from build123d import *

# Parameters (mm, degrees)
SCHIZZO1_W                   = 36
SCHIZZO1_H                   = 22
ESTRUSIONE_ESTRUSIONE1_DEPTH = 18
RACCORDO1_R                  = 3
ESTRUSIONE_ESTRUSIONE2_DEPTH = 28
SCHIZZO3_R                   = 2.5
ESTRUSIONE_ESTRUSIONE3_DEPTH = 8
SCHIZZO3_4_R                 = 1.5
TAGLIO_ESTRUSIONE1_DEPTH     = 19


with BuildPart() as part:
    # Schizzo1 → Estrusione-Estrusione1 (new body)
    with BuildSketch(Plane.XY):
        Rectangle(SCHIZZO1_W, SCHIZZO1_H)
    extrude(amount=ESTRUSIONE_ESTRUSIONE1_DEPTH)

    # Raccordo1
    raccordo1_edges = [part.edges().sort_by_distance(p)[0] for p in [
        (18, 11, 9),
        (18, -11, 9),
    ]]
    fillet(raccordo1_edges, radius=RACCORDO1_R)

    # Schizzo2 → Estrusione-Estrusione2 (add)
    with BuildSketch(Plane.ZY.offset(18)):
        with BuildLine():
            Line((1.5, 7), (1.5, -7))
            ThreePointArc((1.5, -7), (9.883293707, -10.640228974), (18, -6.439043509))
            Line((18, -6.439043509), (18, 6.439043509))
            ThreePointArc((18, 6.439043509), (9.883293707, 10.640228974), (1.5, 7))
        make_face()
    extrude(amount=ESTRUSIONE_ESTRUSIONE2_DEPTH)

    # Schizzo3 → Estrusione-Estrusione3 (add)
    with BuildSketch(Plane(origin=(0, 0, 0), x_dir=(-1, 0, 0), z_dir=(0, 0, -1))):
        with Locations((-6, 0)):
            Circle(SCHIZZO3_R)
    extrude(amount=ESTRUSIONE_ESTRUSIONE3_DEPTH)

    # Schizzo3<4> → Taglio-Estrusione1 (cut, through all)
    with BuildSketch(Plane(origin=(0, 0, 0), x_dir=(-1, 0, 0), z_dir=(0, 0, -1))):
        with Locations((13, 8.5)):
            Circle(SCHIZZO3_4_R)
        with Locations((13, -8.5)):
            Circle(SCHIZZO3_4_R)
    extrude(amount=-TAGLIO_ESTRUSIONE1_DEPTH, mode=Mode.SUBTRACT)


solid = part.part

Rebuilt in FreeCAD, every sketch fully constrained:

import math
import FreeCAD as App
import Part
import Sketcher
Q = App.Units.Quantity


def edges_at(feature, points):
    """Names of the edges that pass closest to the given points."""
    edges = feature.Shape.Edges
    near = lambda p: min(range(len(edges)), key=lambda i: edges[i].distToShape(Part.Vertex(*p))[0])
    return sorted({f"Edge{near(p) + 1}" for p in points})

doc = App.newDocument("Part")
body = doc.addObject("PartDesign::Body", "Body")

sketch1 = doc.addObject("Sketcher::SketchObject", "Sketch")
body.addObject(sketch1)
sketch1.AttachmentSupport = (doc.XY_Plane, [""])
sketch1.MapMode = "FlatFace"
sketch1.addGeometry(Part.LineSegment(App.Vector(-18, 11, 0), App.Vector(-18, -11, 0)), False)
sketch1.addGeometry(Part.LineSegment(App.Vector(-18, -11, 0), App.Vector(18, -11, 0)), False)
sketch1.addGeometry(Part.LineSegment(App.Vector(18, -11, 0), App.Vector(18, 11, 0)), False)
sketch1.addGeometry(Part.LineSegment(App.Vector(18, 11, 0), App.Vector(-18, 11, 0)), False)
sketch1.addConstraint(Sketcher.Constraint("Coincident", 0, 2, 1, 1))
sketch1.addConstraint(Sketcher.Constraint("Coincident", 1, 2, 2, 1))
sketch1.addConstraint(Sketcher.Constraint("Coincident", 2, 2, 3, 1))
sketch1.addConstraint(Sketcher.Constraint("Coincident", 3, 2, 0, 1))
sketch1.addConstraint(Sketcher.Constraint("Vertical", 0))
sketch1.addConstraint(Sketcher.Constraint("Horizontal", 1))
sketch1.addConstraint(Sketcher.Constraint("Vertical", 2))
sketch1.addConstraint(Sketcher.Constraint("Horizontal", 3))
sketch1.addConstraint(Sketcher.Constraint("Symmetric", 0, 2, 2, 2, -1, 1))
sketch1.addConstraint(Sketcher.Constraint("DistanceX", 1, 1, 1, 2, Q("36 mm")))
sketch1.addConstraint(Sketcher.Constraint("DistanceY", 0, 2, 0, 1, Q("22 mm")))
pad1 = doc.addObject("PartDesign::Pad", "Pad")
body.addObject(pad1)
pad1.Profile = sketch1
pad1.Length = 18
doc.recompute()

fillet = doc.addObject("PartDesign::Fillet", "Fillet")
body.addObject(fillet)
fillet.Base = (pad1, edges_at(pad1, [(18, 11, 9), (18, -11, 9)]))
fillet.Radius = 3

sketch2 = doc.addObject("Sketcher::SketchObject", "Sketch001")
body.addObject(sketch2)
sketch2.AttachmentSupport = (doc.YZ_Plane, [""])
sketch2.MapMode = "FlatFace"
sketch2.AttachmentOffset = App.Placement(App.Vector(0, 0, -18), App.Rotation())
sketch2.addGeometry(Part.LineSegment(App.Vector(7, 2, 0), App.Vector(-7, 2, 0)), False)
sketch2.addGeometry(Part.ArcOfCircle(Part.Circle(App.Vector(0, 10, 0), App.Vector(0, 0, 1), 11), math.radians(127), math.radians(229)), False)
sketch2.addGeometry(Part.LineSegment(App.Vector(-6, 18, 0), App.Vector(6, 18, 0)), False)
sketch2.addGeometry(Part.ArcOfCircle(Part.Circle(App.Vector(0, 10, 0), App.Vector(0, 0, 1), 11), math.radians(-49), math.radians(53)), False)
sketch2.addConstraint(Sketcher.Constraint("Coincident", 0, 2, 1, 2))
sketch2.addConstraint(Sketcher.Constraint("Coincident", 1, 1, 2, 1))
sketch2.addConstraint(Sketcher.Constraint("Coincident", 2, 2, 3, 2))
sketch2.addConstraint(Sketcher.Constraint("Coincident", 3, 1, 0, 1))
sketch2.addConstraint(Sketcher.Constraint("Horizontal", 0))
sketch2.addConstraint(Sketcher.Constraint("Horizontal", 2))
sketch2.addConstraint(Sketcher.Constraint("Coincident", 3, 3, 1, 3))
sketch2.addConstraint(Sketcher.Constraint("Equal", 1, 3))
sketch2.addConstraint(Sketcher.Constraint("PointOnObject", 1, 3, -2))
sketch2.addConstraint(Sketcher.Constraint("DistanceX", 0, 2, 0, 1, Q("14 mm")))
sketch2.addConstraint(Sketcher.Constraint("DistanceY", -1, 1, 1, 1, Q("18 mm")))
sketch2.addConstraint(Sketcher.Constraint("DistanceY", -1, 1, 0, 2, Q("1.5 mm")))
sketch2.addConstraint(Sketcher.Constraint("Radius", 1, Q("10.646376 mm")))
pad2 = doc.addObject("PartDesign::Pad", "Pad001")
body.addObject(pad2)
pad2.Profile = sketch2
pad2.Length = 28
pad2.Reversed = True

sketch3 = doc.addObject("Sketcher::SketchObject", "Sketch002")
body.addObject(sketch3)
sketch3.AttachmentSupport = (doc.XY_Plane, [""])
sketch3.MapMode = "FlatFace"
sketch3.addGeometry(Part.Circle(App.Vector(6, 0, 0), App.Vector(0, 0, 1), 2.5), False)
sketch3.addConstraint(Sketcher.Constraint("PointOnObject", 0, 3, -1))
sketch3.addConstraint(Sketcher.Constraint("Diameter", 0, Q("5 mm")))
sketch3.addConstraint(Sketcher.Constraint("DistanceX", -1, 1, 0, 3, Q("6 mm")))
pad3 = doc.addObject("PartDesign::Pad", "Pad002")
body.addObject(pad3)
pad3.Profile = sketch3
pad3.Length = 8
pad3.Reversed = True

sketch4 = doc.addObject("Sketcher::SketchObject", "Sketch003")
body.addObject(sketch4)
sketch4.AttachmentSupport = (doc.XY_Plane, [""])
sketch4.MapMode = "FlatFace"
sketch4.addGeometry(Part.Circle(App.Vector(-13, 8.5, 0), App.Vector(0, 0, 1), 1.5), False)
sketch4.addGeometry(Part.Circle(App.Vector(-13, -8.5, 0), App.Vector(0, 0, 1), 1.5), False)
sketch4.addConstraint(Sketcher.Constraint("Equal", 0, 1))
sketch4.addConstraint(Sketcher.Constraint("Symmetric", 0, 3, 1, 3, -1))
sketch4.addConstraint(Sketcher.Constraint("Diameter", 0, Q("3 mm")))
sketch4.addConstraint(Sketcher.Constraint("DistanceX", 0, 3, -1, 1, Q("13 mm")))
sketch4.addConstraint(Sketcher.Constraint("DistanceY", 1, 3, 0, 3, Q("17 mm")))
pocket1 = doc.addObject("PartDesign::Pocket", "Pocket")
body.addObject(pocket1)
pocket1.Profile = sketch4
pocket1.Type = "ThroughAll"
pocket1.Reversed = True

doc.recompute()
